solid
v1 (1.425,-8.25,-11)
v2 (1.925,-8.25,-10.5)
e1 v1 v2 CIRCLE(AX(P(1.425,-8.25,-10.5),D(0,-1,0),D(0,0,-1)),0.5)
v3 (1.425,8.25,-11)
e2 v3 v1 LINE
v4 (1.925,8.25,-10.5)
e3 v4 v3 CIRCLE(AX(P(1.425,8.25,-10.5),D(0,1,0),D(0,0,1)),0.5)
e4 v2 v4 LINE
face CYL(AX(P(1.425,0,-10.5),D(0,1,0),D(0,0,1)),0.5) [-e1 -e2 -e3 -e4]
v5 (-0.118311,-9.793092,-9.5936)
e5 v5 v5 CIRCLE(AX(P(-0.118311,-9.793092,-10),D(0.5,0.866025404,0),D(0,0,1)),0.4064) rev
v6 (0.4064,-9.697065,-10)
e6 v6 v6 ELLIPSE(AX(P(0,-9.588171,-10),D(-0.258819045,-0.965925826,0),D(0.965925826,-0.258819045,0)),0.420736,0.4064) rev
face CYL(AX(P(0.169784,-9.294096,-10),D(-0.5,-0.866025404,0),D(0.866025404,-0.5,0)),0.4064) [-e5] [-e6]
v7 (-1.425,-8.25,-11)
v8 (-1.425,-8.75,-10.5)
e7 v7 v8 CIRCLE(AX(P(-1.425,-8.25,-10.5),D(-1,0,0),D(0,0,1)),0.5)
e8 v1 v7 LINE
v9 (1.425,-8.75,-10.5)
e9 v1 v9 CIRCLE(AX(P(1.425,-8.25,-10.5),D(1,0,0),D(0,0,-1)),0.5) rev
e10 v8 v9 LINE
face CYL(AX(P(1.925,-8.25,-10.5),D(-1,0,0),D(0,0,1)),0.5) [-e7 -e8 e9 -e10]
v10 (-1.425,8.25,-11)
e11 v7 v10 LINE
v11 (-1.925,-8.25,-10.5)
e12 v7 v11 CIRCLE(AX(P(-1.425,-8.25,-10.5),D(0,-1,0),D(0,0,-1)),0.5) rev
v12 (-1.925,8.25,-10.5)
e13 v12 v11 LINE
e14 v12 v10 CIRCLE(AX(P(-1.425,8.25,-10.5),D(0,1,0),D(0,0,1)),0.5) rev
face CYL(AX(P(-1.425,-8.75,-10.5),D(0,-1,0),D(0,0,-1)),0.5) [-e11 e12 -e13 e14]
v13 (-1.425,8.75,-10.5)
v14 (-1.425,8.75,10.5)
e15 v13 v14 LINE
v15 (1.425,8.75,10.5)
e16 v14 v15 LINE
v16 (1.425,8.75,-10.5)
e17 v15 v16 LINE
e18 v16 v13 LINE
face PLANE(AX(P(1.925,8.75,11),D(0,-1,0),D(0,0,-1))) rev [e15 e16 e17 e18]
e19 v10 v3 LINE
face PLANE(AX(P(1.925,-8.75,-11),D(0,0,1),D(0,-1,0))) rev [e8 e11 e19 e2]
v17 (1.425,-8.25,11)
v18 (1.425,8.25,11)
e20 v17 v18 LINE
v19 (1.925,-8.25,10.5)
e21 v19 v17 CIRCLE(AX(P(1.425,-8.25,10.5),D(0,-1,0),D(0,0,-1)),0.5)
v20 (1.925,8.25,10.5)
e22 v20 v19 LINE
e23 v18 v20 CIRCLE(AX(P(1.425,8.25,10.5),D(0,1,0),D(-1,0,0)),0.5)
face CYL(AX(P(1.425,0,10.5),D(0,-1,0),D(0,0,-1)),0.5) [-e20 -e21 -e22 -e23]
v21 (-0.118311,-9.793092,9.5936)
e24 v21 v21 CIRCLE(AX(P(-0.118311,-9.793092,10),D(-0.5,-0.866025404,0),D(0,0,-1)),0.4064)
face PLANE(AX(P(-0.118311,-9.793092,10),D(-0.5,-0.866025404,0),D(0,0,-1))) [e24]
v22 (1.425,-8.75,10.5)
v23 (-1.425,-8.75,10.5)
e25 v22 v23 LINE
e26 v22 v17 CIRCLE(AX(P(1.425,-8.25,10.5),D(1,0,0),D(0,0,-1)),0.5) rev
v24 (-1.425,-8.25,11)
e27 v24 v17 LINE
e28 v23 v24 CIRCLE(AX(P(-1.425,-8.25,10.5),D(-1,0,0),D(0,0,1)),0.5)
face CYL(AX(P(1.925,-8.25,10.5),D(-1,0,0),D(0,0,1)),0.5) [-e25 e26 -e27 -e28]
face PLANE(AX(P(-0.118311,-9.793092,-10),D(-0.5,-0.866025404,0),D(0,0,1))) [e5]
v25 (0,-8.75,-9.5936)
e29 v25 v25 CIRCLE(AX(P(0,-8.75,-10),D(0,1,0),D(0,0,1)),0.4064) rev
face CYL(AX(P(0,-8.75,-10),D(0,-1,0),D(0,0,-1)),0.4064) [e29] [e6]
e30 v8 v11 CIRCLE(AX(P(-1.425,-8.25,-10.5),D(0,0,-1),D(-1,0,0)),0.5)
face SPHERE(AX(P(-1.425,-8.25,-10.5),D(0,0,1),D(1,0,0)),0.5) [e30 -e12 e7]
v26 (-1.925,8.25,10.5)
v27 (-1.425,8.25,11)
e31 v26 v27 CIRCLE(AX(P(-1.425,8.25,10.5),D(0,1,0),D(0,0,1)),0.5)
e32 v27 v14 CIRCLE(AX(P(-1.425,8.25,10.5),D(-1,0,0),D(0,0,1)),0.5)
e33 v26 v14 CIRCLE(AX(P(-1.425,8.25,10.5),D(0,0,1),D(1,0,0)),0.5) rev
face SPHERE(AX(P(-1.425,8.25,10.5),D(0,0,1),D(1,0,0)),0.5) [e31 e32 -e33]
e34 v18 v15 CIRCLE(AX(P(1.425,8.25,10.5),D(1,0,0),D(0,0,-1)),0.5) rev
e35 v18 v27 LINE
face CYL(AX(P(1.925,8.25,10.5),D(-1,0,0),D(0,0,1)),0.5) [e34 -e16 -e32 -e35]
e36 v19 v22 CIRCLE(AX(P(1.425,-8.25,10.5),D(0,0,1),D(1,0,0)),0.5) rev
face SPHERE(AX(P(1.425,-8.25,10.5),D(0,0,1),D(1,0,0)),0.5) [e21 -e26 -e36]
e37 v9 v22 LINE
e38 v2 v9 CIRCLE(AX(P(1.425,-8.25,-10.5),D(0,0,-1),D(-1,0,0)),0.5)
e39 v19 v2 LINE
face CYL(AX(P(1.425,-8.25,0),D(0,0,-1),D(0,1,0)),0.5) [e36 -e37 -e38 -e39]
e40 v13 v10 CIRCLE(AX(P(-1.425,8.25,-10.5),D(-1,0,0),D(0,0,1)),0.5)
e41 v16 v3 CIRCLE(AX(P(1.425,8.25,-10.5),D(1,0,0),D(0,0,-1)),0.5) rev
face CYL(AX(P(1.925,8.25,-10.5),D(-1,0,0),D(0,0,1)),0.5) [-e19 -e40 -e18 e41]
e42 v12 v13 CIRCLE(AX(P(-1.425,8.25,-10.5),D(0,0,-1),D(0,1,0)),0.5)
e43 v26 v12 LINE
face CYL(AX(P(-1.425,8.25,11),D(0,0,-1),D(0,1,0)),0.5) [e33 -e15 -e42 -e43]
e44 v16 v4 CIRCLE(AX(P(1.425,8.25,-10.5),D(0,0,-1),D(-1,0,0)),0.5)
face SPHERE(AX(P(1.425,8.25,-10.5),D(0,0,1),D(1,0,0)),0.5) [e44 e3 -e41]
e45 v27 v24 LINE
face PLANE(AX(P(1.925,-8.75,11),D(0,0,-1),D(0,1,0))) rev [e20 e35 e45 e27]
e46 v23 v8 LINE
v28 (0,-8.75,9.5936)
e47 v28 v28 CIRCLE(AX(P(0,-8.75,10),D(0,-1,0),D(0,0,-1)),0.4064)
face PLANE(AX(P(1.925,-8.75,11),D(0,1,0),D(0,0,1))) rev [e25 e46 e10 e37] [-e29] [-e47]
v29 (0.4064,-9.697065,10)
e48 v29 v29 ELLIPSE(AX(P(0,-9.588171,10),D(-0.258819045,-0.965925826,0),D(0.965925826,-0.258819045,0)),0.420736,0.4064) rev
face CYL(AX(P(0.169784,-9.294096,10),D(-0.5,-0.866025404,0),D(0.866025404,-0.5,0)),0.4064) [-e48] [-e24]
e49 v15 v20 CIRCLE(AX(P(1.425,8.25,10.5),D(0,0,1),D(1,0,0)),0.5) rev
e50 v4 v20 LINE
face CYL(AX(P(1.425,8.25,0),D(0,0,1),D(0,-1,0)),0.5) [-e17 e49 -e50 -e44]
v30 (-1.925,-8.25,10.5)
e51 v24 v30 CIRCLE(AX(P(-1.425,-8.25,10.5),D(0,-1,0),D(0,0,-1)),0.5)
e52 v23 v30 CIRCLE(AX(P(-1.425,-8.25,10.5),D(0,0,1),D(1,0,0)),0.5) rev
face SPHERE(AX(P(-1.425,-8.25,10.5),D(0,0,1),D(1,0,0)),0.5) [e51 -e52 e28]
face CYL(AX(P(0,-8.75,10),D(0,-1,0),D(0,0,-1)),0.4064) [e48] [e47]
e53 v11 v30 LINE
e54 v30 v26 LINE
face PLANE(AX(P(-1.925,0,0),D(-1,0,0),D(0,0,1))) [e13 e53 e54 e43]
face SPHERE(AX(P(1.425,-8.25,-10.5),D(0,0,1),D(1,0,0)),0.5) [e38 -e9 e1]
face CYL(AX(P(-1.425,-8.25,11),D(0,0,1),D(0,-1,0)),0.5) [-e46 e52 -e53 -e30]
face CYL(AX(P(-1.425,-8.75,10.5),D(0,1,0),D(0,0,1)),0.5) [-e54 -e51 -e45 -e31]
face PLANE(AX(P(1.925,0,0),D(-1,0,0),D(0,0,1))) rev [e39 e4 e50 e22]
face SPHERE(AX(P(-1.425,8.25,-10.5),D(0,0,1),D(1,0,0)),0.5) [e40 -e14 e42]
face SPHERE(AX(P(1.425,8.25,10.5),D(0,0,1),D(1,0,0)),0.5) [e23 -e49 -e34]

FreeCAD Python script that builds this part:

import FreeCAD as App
import Part
import Sketcher
from FreeCAD import Vector
Q = App.Units.Quantity


def edges_at(feature, points):
    """Names of the edges that pass closest to the given points."""
    edges = feature.Shape.Edges
    near = lambda p: min(range(len(edges)), key=lambda i: edges[i].distToShape(Part.Vertex(*p))[0])
    return sorted({f"Edge{near(p) + 1}" for p in points})


def add_polygon(sketch, points):
    """Adds a closed chain of lines whose ends are joined by coincident constraints."""
    first, n = sketch.GeometryCount, len(points)
    for a, b in zip(points, points[1:] + points[:1]):
        sketch.addGeometry(Part.LineSegment(App.Vector(*a, 0), App.Vector(*b, 0)), False)
    for i in range(n):
        sketch.addConstraint(Sketcher.Constraint("Coincident", first + i, 2, first + (i + 1) % n, 1))

doc = App.newDocument("Part")
body = doc.addObject("PartDesign::Body", "Body")

# Sketch on YZ plane
sketch1 = body.newObject("Sketcher::SketchObject", "Sketch")
sketch1.AttachmentSupport = (doc.getObject("YZ_Plane"), [""])
sketch1.MapMode = "FlatFace"
add_polygon(sketch1, [(9, 11), (-9, 11), (-9, -11), (9, -11)])  # lines 0-3
sketch1.addConstraint([
    Sketcher.Constraint("Horizontal", 0),
    Sketcher.Constraint("Vertical", 1),
    Sketcher.Constraint("Horizontal", 2),
    Sketcher.Constraint("Vertical", 3),
    Sketcher.Constraint("Symmetric", 0, 2, 2, 2, -1, 1),
    Sketcher.Constraint("DistanceY", 1, 2, 1, 1, 22.0),
    Sketcher.Constraint("DistanceX", 0, 2, 0, 1, 17.5),
])
pad1 = body.newObject("PartDesign::Pad", "Pad")
pad1.Profile = sketch1
pad1.Length = 3.85
pad1.Midplane = True

# Sketch on XZ plane
sketch2 = body.newObject("Sketcher::SketchObject", "Sketch001")
sketch2.AttachmentSupport = (doc.getObject("XZ_Plane"), [""])
sketch2.MapMode = "FlatFace"
sketch2.AttachmentOffset = App.Placement(Vector(0, 0, 8.75), App.Rotation())
sketch2.addGeometry(Part.Circle(Vector(0, 10, 0), Vector(0, 0, 1), 0.41), False)
sketch2.addConstraint([
    Sketcher.Constraint("PointOnObject", 0, 3, -2),
    Sketcher.Constraint("DistanceY", -1, 1, 0, 3, 10.0),
    Sketcher.Constraint("Diameter", 0, 0.8128),
])

# Sketch on XY plane
sketch3 = body.newObject("Sketcher::SketchObject", "Sketch002")
sketch3.AttachmentSupport = (doc.getObject("XY_Plane"), [""])
sketch3.MapMode = "FlatFace"
sketch3.AttachmentOffset = App.Placement(Vector(0, 0, 10), App.Rotation())
sketch3.addGeometry([
    Part.LineSegment(Vector(0, -8.75, 0), Vector(0, -9.59, 0)),
    Part.LineSegment(Vector(0, -9.59, 0), Vector(-0.12, -9.79, 0)),
], False)
sketch3.addConstraint([
    Sketcher.Constraint("Coincident", 0, 2, 1, 1),
    Sketcher.Constraint("Vertical", 0),
    Sketcher.Constraint("PointOnObject", 0, 1, -2),
    Sketcher.Constraint("Angle", 1, Q("-120 deg")),
    Sketcher.Constraint("DistanceY", 0, 1, -1, 1, 8.75),
    Sketcher.Constraint("DistanceY", 0, 2, 0, 1, 0.838171),
    Sketcher.Constraint("DistanceX", 1, 2, -1, 1, 0.118311),
])
doc.recompute()

additivepipe = body.newObject("PartDesign::AdditivePipe", "AdditivePipe")
additivepipe.Profile = sketch2
additivepipe.Spine = (sketch3, ["Edge1", "Edge2"])
additivepipe.Transition = "Right corner"
doc.recompute()

fillet = body.newObject("PartDesign::Fillet", "Fillet")
fillet.Base = (additivepipe, edges_at(additivepipe, [
    (1.925, 0, 11),
    (1.925, -8.75, 0),
    (1.925, 0, -11),
    (-1.925, -8.75, 0),
    (-1.925, 0, 11),
    (-1.925, 8.75, 0),
    (-1.925, 0, -11),
    (0, -8.75, -11),
    (0, -8.75, 11),
    (0, 8.75, 11),
    (0, 8.75, -11),
    (1.925, 8.75, 0),
]))
fillet.Radius = 0.5
doc.recompute()

mirrored = body.newObject("PartDesign::Mirrored", "Mirrored")
mirrored.Originals = [additivepipe]
mirrored.MirrorPlane = (doc.getObject("XY_Plane"), [""])
body.Tip = mirrored

doc.recompute()
